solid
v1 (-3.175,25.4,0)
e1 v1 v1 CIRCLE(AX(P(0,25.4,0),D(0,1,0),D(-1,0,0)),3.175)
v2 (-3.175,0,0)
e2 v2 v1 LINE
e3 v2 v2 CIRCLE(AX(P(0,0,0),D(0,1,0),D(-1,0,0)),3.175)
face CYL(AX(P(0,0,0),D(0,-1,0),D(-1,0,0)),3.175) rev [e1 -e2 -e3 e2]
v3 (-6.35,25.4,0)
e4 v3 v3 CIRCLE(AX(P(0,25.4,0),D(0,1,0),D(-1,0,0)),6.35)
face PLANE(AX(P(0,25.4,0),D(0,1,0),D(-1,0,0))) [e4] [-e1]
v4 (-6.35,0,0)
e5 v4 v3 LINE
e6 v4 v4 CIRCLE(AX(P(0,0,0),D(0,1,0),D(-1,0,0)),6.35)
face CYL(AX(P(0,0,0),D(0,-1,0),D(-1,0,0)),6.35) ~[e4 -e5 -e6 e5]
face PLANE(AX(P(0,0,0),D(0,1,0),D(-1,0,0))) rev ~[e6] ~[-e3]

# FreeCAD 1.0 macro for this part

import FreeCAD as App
import Part
import Sketcher
Q = App.Units.Quantity

doc = App.newDocument("Part")
body = doc.addObject("PartDesign::Body", "Body")

sketch1 = body.newObject("Sketcher::SketchObject", "Sketch")
sketch1.AttachmentSupport = (doc.getObject("XZ_Plane"), [""])
sketch1.MapMode = "FlatFace"
sketch1.addGeometry([
    Part.Circle(App.Vector(0, 0, 0), App.Vector(0, 0, 1), 6.3),
    Part.Circle(App.Vector(0, 0, 0), App.Vector(0, 0, 1), 3.2),
], False)
sketch1.addConstraint([
    Sketcher.Constraint("Coincident", 0, 3, -1, 1),
    Sketcher.Constraint("Coincident", 1, 3, -1, 1),
    Sketcher.Constraint("Diameter", 0, Q("0.5 in")),
    Sketcher.Constraint("Diameter", 1, Q("0.25 in")),
])
pad1 = body.newObject("PartDesign::Pad", "Pad")
pad1.Profile = sketch1
pad1.Length = Q("1 in")
pad1.Reversed = True

doc.recompute()
